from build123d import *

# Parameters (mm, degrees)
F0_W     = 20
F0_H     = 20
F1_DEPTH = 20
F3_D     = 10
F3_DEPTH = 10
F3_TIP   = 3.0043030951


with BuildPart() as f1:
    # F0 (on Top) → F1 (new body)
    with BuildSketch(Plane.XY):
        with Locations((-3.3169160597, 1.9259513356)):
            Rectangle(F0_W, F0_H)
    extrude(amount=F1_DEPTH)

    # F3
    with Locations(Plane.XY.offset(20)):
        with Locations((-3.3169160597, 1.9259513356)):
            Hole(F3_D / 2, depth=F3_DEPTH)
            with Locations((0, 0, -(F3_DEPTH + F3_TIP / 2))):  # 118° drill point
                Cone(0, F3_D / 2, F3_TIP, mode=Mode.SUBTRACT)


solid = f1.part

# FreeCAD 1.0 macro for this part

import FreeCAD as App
import Part
import Sketcher

V = App.Vector


def add_polygon(sketch, points):
    """Adds a closed chain of lines whose ends are joined by coincident constraints."""
    first, n = sketch.GeometryCount, len(points)
    for a, b in zip(points, points[1:] + points[:1]):
        sketch.addGeometry(Part.LineSegment(App.Vector(*a, 0), App.Vector(*b, 0)), False)
    for i in range(n):
        sketch.addConstraint(Sketcher.Constraint("Coincident", first + i, 2, first + (i + 1) % n, 1))

doc = App.newDocument("Part")
body = doc.addObject("PartDesign::Body", "Body")

# Sketch on XY plane
sketch1 = doc.addObject("Sketcher::SketchObject", "Sketch")
body.addObject(sketch1)
sketch1.AttachmentSupport = (doc.XY_Plane, [""])
sketch1.MapMode = "FlatFace"
add_polygon(sketch1, [(-13.316916, 11.925951), (-13.316916, -8.074049), (6.683084, -8.074049), (6.683084, 11.925951)])  # lines 0-3
sketch1.addConstraint([
    Sketcher.Constraint("Vertical", 0),
    Sketcher.Constraint("Horizontal", 1),
    Sketcher.Constraint("Vertical", 2),
    Sketcher.Constraint("Horizontal", 3),
    Sketcher.Constraint("Equal", 3, 0),
    Sketcher.Constraint("DistanceX", 1, 1, 1, 2, 20.0),
    Sketcher.Constraint("DistanceY", 0, 2, -1, 1, 8.074049),
    Sketcher.Constraint("DistanceX", 0, 2, -1, 1, 13.316916),
])
pad1 = doc.addObject("PartDesign::Pad", "Pad")
body.addObject(pad1)
pad1.Profile = sketch1
pad1.Length = 20

# Sketch on XY plane
sketch2 = doc.addObject("Sketcher::SketchObject", "Sketch001")
body.addObject(sketch2)
sketch2.AttachmentSupport = (doc.XY_Plane, [""])
sketch2.MapMode = "FlatFace"
sketch2.AttachmentOffset = App.Placement(V(0, 0, 20), App.Rotation())
sketch2.addGeometry(Part.Circle(V(-3.316916, 1.925951, 0), V(0, 0, 1), 5), False)
sketch2.addConstraint([
    Sketcher.Constraint("Diameter", 0, 10.0),
    Sketcher.Constraint("DistanceY", -1, 1, 0, 3, 1.925951),
    Sketcher.Constraint("DistanceX", 0, 3, -1, 1, 3.316916),
])
doc.recompute()
hole = doc.addObject("PartDesign::Hole", "Hole")
body.addObject(hole)
hole.Profile = sketch2
hole.ThreadType = "None"
hole.Diameter = 10
hole.DepthType = "Dimension"
hole.Depth = 10
hole.DrillPoint = "Angled"
hole.DrillPointAngle = 118

doc.recompute()
